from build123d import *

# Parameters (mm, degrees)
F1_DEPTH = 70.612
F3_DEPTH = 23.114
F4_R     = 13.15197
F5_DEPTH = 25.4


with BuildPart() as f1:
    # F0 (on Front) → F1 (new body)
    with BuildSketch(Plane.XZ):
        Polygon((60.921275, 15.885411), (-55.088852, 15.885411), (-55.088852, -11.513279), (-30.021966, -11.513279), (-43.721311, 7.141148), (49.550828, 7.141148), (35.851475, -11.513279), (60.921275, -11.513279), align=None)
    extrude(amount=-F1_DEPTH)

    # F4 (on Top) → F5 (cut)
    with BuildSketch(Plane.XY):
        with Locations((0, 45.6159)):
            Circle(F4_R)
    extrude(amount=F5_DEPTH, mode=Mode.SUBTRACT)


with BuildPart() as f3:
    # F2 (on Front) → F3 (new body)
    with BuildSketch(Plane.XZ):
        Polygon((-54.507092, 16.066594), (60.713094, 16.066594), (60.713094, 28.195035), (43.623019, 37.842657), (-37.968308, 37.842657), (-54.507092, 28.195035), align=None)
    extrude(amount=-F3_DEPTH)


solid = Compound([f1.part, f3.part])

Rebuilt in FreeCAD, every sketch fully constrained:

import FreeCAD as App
import Part
import Sketcher
from FreeCAD import Vector
Q = App.Units.Quantity

doc = App.newDocument("Part")
body = doc.addObject("PartDesign::Body", "Body")

# Sketch on XZ plane
sketch1 = doc.addObject("Sketcher::SketchObject", "Sketch")
body.addObject(sketch1)
sketch1.AttachmentSupport = (doc.XZ_Plane, [""])
sketch1.MapMode = "FlatFace"
sketch1.addGeometry(Part.LineSegment(Vector(61, 16, 0), Vector(-55, 16, 0)), False)
sketch1.addGeometry(Part.LineSegment(Vector(-55, 16, 0), Vector(-55, -12, 0)), False)
sketch1.addGeometry(Part.LineSegment(Vector(-55, -12, 0), Vector(-30, -12, 0)), False)
sketch1.addGeometry(Part.LineSegment(Vector(-30, -12, 0), Vector(-44, 7, 0)), False)
sketch1.addGeometry(Part.LineSegment(Vector(-44, 7, 0), Vector(50, 7, 0)), False)
sketch1.addGeometry(Part.LineSegment(Vector(50, 7, 0), Vector(36, -12, 0)), False)
sketch1.addGeometry(Part.LineSegment(Vector(36, -12, 0), Vector(61, -12, 0)), False)
sketch1.addGeometry(Part.LineSegment(Vector(61, -12, 0), Vector(61, 16, 0)), False)
sketch1.addConstraint(Sketcher.Constraint("Coincident", 0, 2, 1, 1))
sketch1.addConstraint(Sketcher.Constraint("Coincident", 1, 2, 2, 1))
sketch1.addConstraint(Sketcher.Constraint("Coincident", 2, 2, 3, 1))
sketch1.addConstraint(Sketcher.Constraint("Coincident", 3, 2, 4, 1))
sketch1.addConstraint(Sketcher.Constraint("Coincident", 4, 2, 5, 1))
sketch1.addConstraint(Sketcher.Constraint("Coincident", 5, 2, 6, 1))
sketch1.addConstraint(Sketcher.Constraint("Coincident", 6, 2, 7, 1))
sketch1.addConstraint(Sketcher.Constraint("Coincident", 7, 2, 0, 1))
sketch1.addConstraint(Sketcher.Constraint("Horizontal", 0))
sketch1.addConstraint(Sketcher.Constraint("Vertical", 1))
sketch1.addConstraint(Sketcher.Constraint("Horizontal", 2))
sketch1.addConstraint(Sketcher.Constraint("Horizontal", 4))
sketch1.addConstraint(Sketcher.Constraint("Horizontal", 6))
sketch1.addConstraint(Sketcher.Constraint("Vertical", 7))
sketch1.addConstraint(Sketcher.Constraint("Horizontal", 2, 2, 5, 2))
sketch1.addConstraint(Sketcher.Constraint("DistanceX", 6, 1, 6, 2, Q("0.987 in")))
sketch1.addConstraint(Sketcher.Constraint("DistanceX", 4, 1, 4, 2, Q("93.272139 mm")))
sketch1.addConstraint(Sketcher.Constraint("DistanceY", 1, 2, 1, 1, Q("27.39869 mm")))
sketch1.addConstraint(Sketcher.Constraint("Distance", 5, Q("23.144328 mm")))
sketch1.addConstraint(Sketcher.Constraint("DistanceX", 0, 2, 0, 1, Q("116.010127 mm")))
sketch1.addConstraint(Sketcher.Constraint("DistanceX", 2, 1, 2, 2, Q("25.066886 mm")))
sketch1.addConstraint(Sketcher.Constraint("DistanceY", -1, 1, 0, 2, Q("15.885411 mm")))
sketch1.addConstraint(Sketcher.Constraint("DistanceX", 3, 2, -1, 1, Q("43.721311 mm")))
sketch1.addConstraint(Sketcher.Constraint("DistanceY", -1, 1, 3, 2, Q("7.141148 mm")))
pad1 = doc.addObject("PartDesign::Pad", "Pad")
body.addObject(pad1)
pad1.Profile = sketch1
pad1.Length = Q("2.78 in")
pad1.Reversed = True

# Sketch on XY plane
sketch2 = doc.addObject("Sketcher::SketchObject", "Sketch001")
body.addObject(sketch2)
sketch2.AttachmentSupport = (doc.XY_Plane, [""])
sketch2.MapMode = "FlatFace"
sketch2.addGeometry(Part.Circle(Vector(0, 46, 0), Vector(0, 0, 1), 13), False)
sketch2.addConstraint(Sketcher.Constraint("PointOnObject", 0, 3, -2))
sketch2.addConstraint(Sketcher.Constraint("Diameter", 0, Q("26.30394 mm")))
sketch2.addConstraint(Sketcher.Constraint("DistanceY", -1, 1, 0, 3, Q("45.6159 mm")))
pocket1 = doc.addObject("PartDesign::Pocket", "Pocket")
body.addObject(pocket1)
pocket1.Profile = sketch2
pocket1.Length = Q("1 in")
pocket1.Reversed = True
body2 = doc.addObject("PartDesign::Body", "Body001")

# Sketch on XZ plane
sketch3 = doc.addObject("Sketcher::SketchObject", "Sketch002")
body2.addObject(sketch3)
sketch3.AttachmentSupport = (doc.getObject("XZ_Plane001"), [""])
sketch3.MapMode = "FlatFace"
sketch3.addGeometry(Part.LineSegment(Vector(-55, 16, 0), Vector(61, 16, 0)), False)
sketch3.addGeometry(Part.LineSegment(Vector(61, 16, 0), Vector(61, 28, 0)), False)
sketch3.addGeometry(Part.LineSegment(Vector(61, 28, 0), Vector(44, 38, 0)), False)
sketch3.addGeometry(Part.LineSegment(Vector(44, 38, 0), Vector(-38, 38, 0)), False)
sketch3.addGeometry(Part.LineSegment(Vector(-38, 38, 0), Vector(-55, 28, 0)), False)
sketch3.addGeometry(Part.LineSegment(Vector(-55, 28, 0), Vector(-55, 16, 0)), False)
sketch3.addConstraint(Sketcher.Constraint("Coincident", 0, 2, 1, 1))
sketch3.addConstraint(Sketcher.Constraint("Coincident", 1, 2, 2, 1))
sketch3.addConstraint(Sketcher.Constraint("Coincident", 2, 2, 3, 1))
sketch3.addConstraint(Sketcher.Constraint("Coincident", 3, 2, 4, 1))
sketch3.addConstraint(Sketcher.Constraint("Coincident", 4, 2, 5, 1))
sketch3.addConstraint(Sketcher.Constraint("Coincident", 5, 2, 0, 1))
sketch3.addConstraint(Sketcher.Constraint("Horizontal", 0))
sketch3.addConstraint(Sketcher.Constraint("Vertical", 1))
sketch3.addConstraint(Sketcher.Constraint("Horizontal", 3))
sketch3.addConstraint(Sketcher.Constraint("Vertical", 5))
sketch3.addConstraint(Sketcher.Constraint("Horizontal", 1, 2, 4, 2))
sketch3.addConstraint(Sketcher.Constraint("DistanceY", 1, 1, 1, 2, Q("12.128441 mm")))
sketch3.addConstraint(Sketcher.Constraint("DistanceX", 3, 2, 1, 2, Q("98.681402 mm")))
sketch3.addConstraint(Sketcher.Constraint("Distance", 2, Q("19.625169 mm")))
sketch3.addConstraint(Sketcher.Constraint("Distance", 4, Q("19.14701 mm")))
sketch3.addConstraint(Sketcher.Constraint("DistanceX", 0, 1, 0, 2, Q("115.220186 mm")))
sketch3.addConstraint(Sketcher.Constraint("DistanceX", -1, 1, 2, 2, Q("43.623019 mm")))
sketch3.addConstraint(Sketcher.Constraint("DistanceY", -1, 1, 0, 2, Q("16.066594 mm")))
pad2 = doc.addObject("PartDesign::Pad", "Pad001")
body2.addObject(pad2)
pad2.Profile = sketch3
pad2.Length = Q("0.91 in")
pad2.Reversed = True

doc.recompute()
